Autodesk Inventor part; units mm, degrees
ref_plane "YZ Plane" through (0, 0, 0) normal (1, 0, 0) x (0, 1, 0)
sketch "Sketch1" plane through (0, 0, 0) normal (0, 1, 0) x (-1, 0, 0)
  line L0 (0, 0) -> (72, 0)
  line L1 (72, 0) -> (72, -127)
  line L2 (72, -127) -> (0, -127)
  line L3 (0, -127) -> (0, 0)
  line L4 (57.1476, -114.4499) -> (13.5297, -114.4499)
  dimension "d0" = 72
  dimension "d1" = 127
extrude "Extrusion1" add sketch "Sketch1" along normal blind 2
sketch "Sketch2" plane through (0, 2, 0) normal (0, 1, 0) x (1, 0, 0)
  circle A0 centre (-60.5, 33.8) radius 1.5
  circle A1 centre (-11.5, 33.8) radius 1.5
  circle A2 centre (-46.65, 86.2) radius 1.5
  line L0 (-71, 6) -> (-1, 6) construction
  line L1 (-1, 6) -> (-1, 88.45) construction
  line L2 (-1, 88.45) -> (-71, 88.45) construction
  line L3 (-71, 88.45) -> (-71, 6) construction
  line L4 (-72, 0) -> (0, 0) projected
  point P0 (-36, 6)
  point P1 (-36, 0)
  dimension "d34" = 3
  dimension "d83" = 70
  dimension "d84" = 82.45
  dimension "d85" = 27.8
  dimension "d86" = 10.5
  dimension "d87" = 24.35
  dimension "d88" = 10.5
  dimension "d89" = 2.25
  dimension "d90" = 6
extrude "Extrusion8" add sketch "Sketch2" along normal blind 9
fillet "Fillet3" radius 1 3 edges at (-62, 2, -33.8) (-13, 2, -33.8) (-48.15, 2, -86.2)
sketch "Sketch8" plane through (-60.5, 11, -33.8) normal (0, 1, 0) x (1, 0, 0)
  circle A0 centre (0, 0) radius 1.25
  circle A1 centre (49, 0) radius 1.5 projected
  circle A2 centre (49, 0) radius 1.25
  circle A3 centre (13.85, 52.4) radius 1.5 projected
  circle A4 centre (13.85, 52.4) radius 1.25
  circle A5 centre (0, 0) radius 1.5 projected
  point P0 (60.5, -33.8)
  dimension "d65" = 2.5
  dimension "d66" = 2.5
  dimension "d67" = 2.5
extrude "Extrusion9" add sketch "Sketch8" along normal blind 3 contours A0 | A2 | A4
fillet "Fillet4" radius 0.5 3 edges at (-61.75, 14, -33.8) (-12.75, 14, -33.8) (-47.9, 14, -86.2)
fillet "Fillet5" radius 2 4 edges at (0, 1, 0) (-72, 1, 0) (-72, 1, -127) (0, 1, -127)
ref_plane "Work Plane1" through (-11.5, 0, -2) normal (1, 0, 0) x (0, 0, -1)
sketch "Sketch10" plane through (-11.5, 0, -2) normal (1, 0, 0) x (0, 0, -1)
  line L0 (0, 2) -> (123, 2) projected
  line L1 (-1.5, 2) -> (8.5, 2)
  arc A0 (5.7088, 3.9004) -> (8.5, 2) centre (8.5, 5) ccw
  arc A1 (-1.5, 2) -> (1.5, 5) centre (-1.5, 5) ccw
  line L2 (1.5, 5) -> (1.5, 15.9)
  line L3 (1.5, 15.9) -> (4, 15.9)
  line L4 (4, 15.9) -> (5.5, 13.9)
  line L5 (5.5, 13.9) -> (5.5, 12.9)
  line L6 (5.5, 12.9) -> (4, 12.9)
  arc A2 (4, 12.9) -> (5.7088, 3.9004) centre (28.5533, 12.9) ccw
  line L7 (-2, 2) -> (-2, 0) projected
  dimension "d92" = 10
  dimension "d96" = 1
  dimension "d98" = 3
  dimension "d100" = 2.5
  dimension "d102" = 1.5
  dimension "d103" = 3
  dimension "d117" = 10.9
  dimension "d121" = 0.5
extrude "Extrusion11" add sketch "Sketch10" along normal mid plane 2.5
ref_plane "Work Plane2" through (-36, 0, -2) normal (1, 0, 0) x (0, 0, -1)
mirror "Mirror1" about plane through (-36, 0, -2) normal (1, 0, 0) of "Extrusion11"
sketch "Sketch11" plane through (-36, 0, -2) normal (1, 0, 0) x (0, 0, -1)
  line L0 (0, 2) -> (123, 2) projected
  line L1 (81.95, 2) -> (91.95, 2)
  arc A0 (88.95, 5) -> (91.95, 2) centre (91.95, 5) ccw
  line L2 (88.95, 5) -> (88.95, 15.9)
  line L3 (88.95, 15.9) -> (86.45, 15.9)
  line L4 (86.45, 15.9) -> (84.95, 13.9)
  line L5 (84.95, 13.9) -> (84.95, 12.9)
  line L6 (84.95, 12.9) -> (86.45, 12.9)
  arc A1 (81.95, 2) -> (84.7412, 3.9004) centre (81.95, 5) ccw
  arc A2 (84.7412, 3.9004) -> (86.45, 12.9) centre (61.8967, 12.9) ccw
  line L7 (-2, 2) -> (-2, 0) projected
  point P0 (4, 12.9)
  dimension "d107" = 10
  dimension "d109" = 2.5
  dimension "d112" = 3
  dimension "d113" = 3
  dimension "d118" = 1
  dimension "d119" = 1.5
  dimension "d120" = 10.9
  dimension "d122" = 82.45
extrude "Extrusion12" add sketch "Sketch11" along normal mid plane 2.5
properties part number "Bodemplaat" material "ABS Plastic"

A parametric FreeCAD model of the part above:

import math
import FreeCAD as App
import Part
import Sketcher
Q = App.Units.Quantity


def edges_at(feature, points):
    """Names of the edges that pass closest to the given points."""
    edges = feature.Shape.Edges
    near = lambda p: min(range(len(edges)), key=lambda i: edges[i].distToShape(Part.Vertex(*p))[0])
    return sorted({f"Edge{near(p) + 1}" for p in points})

doc = App.newDocument("Part")
body = doc.addObject("PartDesign::Body", "Body")

sketch1 = body.newObject("Sketcher::SketchObject", "Sketch")
sketch1.AttachmentSupport = (doc.getObject("XZ_Plane"), [""])
sketch1.MapMode = "FlatFace"
sketch1.addGeometry([
    Part.LineSegment(App.Vector(-72, 0, 0), App.Vector(0, 0, 0)),
    Part.LineSegment(App.Vector(0, 0, 0), App.Vector(0, -127, 0)),
    Part.LineSegment(App.Vector(0, -127, 0), App.Vector(-72, -127, 0)),
    Part.LineSegment(App.Vector(-72, -127, 0), App.Vector(-72, 0, 0)),
], False)
sketch1.addConstraint([
    Sketcher.Constraint("Coincident", 0, 2, 1, 1),
    Sketcher.Constraint("Coincident", 1, 2, 2, 1),
    Sketcher.Constraint("Coincident", 2, 2, 3, 1),
    Sketcher.Constraint("Coincident", 3, 2, 0, 1),
    Sketcher.Constraint("Horizontal", 0),
    Sketcher.Constraint("Vertical", 1),
    Sketcher.Constraint("Horizontal", 2),
    Sketcher.Constraint("Vertical", 3),
    Sketcher.Constraint("Coincident", 0, 2, -1, 1),
    Sketcher.Constraint("DistanceX", 0, 1, 0, 2, Q("72 mm")),
    Sketcher.Constraint("DistanceY", 1, 2, 1, 1, Q("127 mm")),
])
pad1 = body.newObject("PartDesign::Pad", "Pad")
pad1.Profile = sketch1
pad1.Length = 2
pad1.Reversed = True

sketch2 = body.newObject("Sketcher::SketchObject", "Sketch001")
sketch2.AttachmentSupport = (doc.getObject("XZ_Plane"), [""])
sketch2.MapMode = "FlatFace"
sketch2.AttachmentOffset = App.Placement(App.Vector(0, 0, -2), App.Rotation())
sketch2.addGeometry([
    Part.Circle(App.Vector(-60.5, -33.8, 0), App.Vector(0, 0, 1), 1.5),
    Part.Circle(App.Vector(-11.5, -33.8, 0), App.Vector(0, 0, 1), 1.5),
    Part.Circle(App.Vector(-46.6, -86.2, 0), App.Vector(0, 0, 1), 1.5),
], False)
sketch2.addConstraint([
    Sketcher.Constraint("Equal", 0, 1),
    Sketcher.Constraint("Equal", 1, 2),
    Sketcher.Constraint("Horizontal", 0, 3, 1, 3),
    Sketcher.Constraint("Diameter", 0, Q("3 mm")),
    Sketcher.Constraint("DistanceX", 0, 3, 1, 3, Q("49 mm")),
    Sketcher.Constraint("DistanceX", 0, 3, -1, 1, Q("60.5 mm")),
    Sketcher.Constraint("DistanceY", 0, 3, -1, 1, Q("33.8 mm")),
    Sketcher.Constraint("DistanceY", 2, 3, -1, 1, Q("86.2 mm")),
    Sketcher.Constraint("DistanceX", 2, 3, -1, 1, Q("46.65 mm")),
])
pad2 = body.newObject("PartDesign::Pad", "Pad001")
pad2.Profile = sketch2
pad2.Length = 9
pad2.Reversed = True
doc.recompute()

fillet = body.newObject("PartDesign::Fillet", "Fillet")
fillet.Base = (pad2, edges_at(pad2, [(-62, 2, -33.8), (-13, 2, -33.8), (-48.15, 2, -86.2)]))
fillet.Radius = 1

sketch3 = body.newObject("Sketcher::SketchObject", "Sketch002")
sketch3.AttachmentSupport = (doc.getObject("XZ_Plane"), [""])
sketch3.MapMode = "FlatFace"
sketch3.AttachmentOffset = App.Placement(App.Vector(0, 0, -11), App.Rotation())
sketch3.addGeometry([
    Part.Circle(App.Vector(-60.5, -33.8, 0), App.Vector(0, 0, 1), 1.2),
    Part.Circle(App.Vector(-11.5, -33.8, 0), App.Vector(0, 0, 1), 1.2),
    Part.Circle(App.Vector(-46.6, -86.2, 0), App.Vector(0, 0, 1), 1.2),
], False)
sketch3.addConstraint([
    Sketcher.Constraint("Equal", 0, 1),
    Sketcher.Constraint("Equal", 1, 2),
    Sketcher.Constraint("Horizontal", 0, 3, 1, 3),
    Sketcher.Constraint("Diameter", 0, Q("2.5 mm")),
    Sketcher.Constraint("DistanceX", 0, 3, 1, 3, Q("49 mm")),
    Sketcher.Constraint("DistanceX", 0, 3, -1, 1, Q("60.5 mm")),
    Sketcher.Constraint("DistanceY", 0, 3, -1, 1, Q("33.8 mm")),
    Sketcher.Constraint("DistanceY", 2, 3, -1, 1, Q("86.2 mm")),
    Sketcher.Constraint("DistanceX", 2, 3, -1, 1, Q("46.65 mm")),
])
pad3 = body.newObject("PartDesign::Pad", "Pad002")
pad3.Profile = sketch3
pad3.Length = 3
pad3.Reversed = True
doc.recompute()

fillet2 = body.newObject("PartDesign::Fillet", "Fillet001")
fillet2.Base = (pad3, edges_at(pad3, [(-61.75, 14, -33.8), (-12.75, 14, -33.8), (-47.9, 14, -86.2)]))
fillet2.Radius = 0.5
doc.recompute()

fillet3 = body.newObject("PartDesign::Fillet", "Fillet002")
fillet3.Base = (fillet2, edges_at(fillet2, [
    (0, 1, 0),
    (-72, 1, 0),
    (-72, 1, -127),
    (0, 1, -127),
]))
fillet3.Radius = 2

sketch4 = body.newObject("Sketcher::SketchObject", "Sketch003")
sketch4.AttachmentSupport = (doc.getObject("YZ_Plane"), [""])
sketch4.MapMode = "FlatFace"
sketch4.AttachmentOffset = App.Placement(App.Vector(0, 0, -11.5), App.Rotation())
sketch4.addGeometry([
    Part.LineSegment(App.Vector(2, -0.5, 0), App.Vector(2, -10.5, 0)),
    Part.ArcOfCircle(Part.Circle(App.Vector(5, -10.5, 0), App.Vector(0, 0, 1), 3), math.radians(112), math.radians(180)),
    Part.ArcOfCircle(Part.Circle(App.Vector(12.9, -30.6, 0), App.Vector(0, 0, 1), 24.6), math.radians(90), math.radians(112)),
    Part.LineSegment(App.Vector(12.9, -6, 0), App.Vector(12.9, -7.5, 0)),
    Part.LineSegment(App.Vector(12.9, -7.5, 0), App.Vector(13.9, -7.5, 0)),
    Part.LineSegment(App.Vector(13.9, -7.5, 0), App.Vector(15.9, -6, 0)),
    Part.LineSegment(App.Vector(15.9, -6, 0), App.Vector(15.9, -3.5, 0)),
    Part.LineSegment(App.Vector(15.9, -3.5, 0), App.Vector(5, -3.5, 0)),
    Part.ArcOfCircle(Part.Circle(App.Vector(5, -0.5, 0), App.Vector(0, 0, 1), 3), math.radians(180), math.radians(270)),
], False)
sketch4.addConstraint([
    Sketcher.Constraint("Tangent", 0, 2, 1, 2),
    Sketcher.Constraint("Tangent", 1, 1, 2, 2),
    Sketcher.Constraint("Coincident", 2, 1, 3, 1),
    Sketcher.Constraint("Coincident", 3, 2, 4, 1),
    Sketcher.Constraint("Coincident", 4, 2, 5, 1),
    Sketcher.Constraint("Coincident", 5, 2, 6, 1),
    Sketcher.Constraint("Coincident", 6, 2, 7, 1),
    Sketcher.Constraint("Tangent", 7, 2, 8, 2),
    Sketcher.Constraint("Tangent", 8, 1, 0, 1),
    Sketcher.Constraint("Vertical", 0),
    Sketcher.Constraint("Vertical", 3),
    Sketcher.Constraint("Horizontal", 4),
    Sketcher.Constraint("Vertical", 6),
    Sketcher.Constraint("Horizontal", 7),
    Sketcher.Constraint("Equal", 1, 8),
    Sketcher.Constraint("Horizontal", 2, 1, 5, 2),
    Sketcher.Constraint("Radius", 1, Q("3 mm")),
    Sketcher.Constraint("DistanceX", 4, 1, 4, 2, Q("1 mm")),
    Sketcher.Constraint("DistanceY", 0, 2, 0, 1, Q("10 mm")),
    Sketcher.Constraint("DistanceX", 7, 2, 7, 1, Q("10.9 mm")),
    Sketcher.Constraint("DistanceY", 3, 2, 3, 1, Q("1.5 mm")),
    Sketcher.Constraint("DistanceY", 6, 1, 6, 2, Q("2.5 mm")),
    Sketcher.Constraint("DistanceX", 2, 1, 5, 2, Q("3 mm")),
    Sketcher.Constraint("DistanceY", 8, 3, -1, 1, Q("0.5 mm")),
    Sketcher.Constraint("DistanceX", 0, 2, 2, 3, Q("10.9 mm")),
    Sketcher.Constraint("DistanceX", -1, 1, 1, 3, Q("5 mm")),
])
pad4 = body.newObject("PartDesign::Pad", "Pad003")
pad4.Profile = sketch4
pad4.Length = 2.5
pad4.Midplane = True
doc.recompute()

datumplane = body.newObject("PartDesign::Plane", "DatumPlane")
datumplane.AttachmentSupport = (doc.getObject("YZ_Plane"), [""])
datumplane.MapMode = "FlatFace"
datumplane.AttachmentOffset = App.Placement(App.Vector(0, 0, -36), App.Rotation())
mirrored = body.newObject("PartDesign::Mirrored", "Mirrored")
mirrored.Originals = [pad4]
mirrored.MirrorPlane = (datumplane, [""])
body.Tip = mirrored

sketch5 = body.newObject("Sketcher::SketchObject", "Sketch004")
sketch5.AttachmentSupport = (doc.getObject("YZ_Plane"), [""])
sketch5.MapMode = "FlatFace"
sketch5.AttachmentOffset = App.Placement(App.Vector(0, 0, -36), App.Rotation())
sketch5.addGeometry([
    Part.ArcOfCircle(Part.Circle(App.Vector(5, -84, 0), App.Vector(0, 0, 1), 3), math.radians(180), math.radians(248)),
    Part.LineSegment(App.Vector(2, -84, 0), App.Vector(2, -94, 0)),
    Part.ArcOfCircle(Part.Circle(App.Vector(5, -94, 0), App.Vector(0, 0, 1), 3), math.radians(90), math.radians(180)),
    Part.LineSegment(App.Vector(5, -91, 0), App.Vector(15.9, -91, 0)),
    Part.LineSegment(App.Vector(15.9, -91, 0), App.Vector(15.9, -88.5, 0)),
    Part.LineSegment(App.Vector(15.9, -88.5, 0), App.Vector(13.9, -87, 0)),
    Part.LineSegment(App.Vector(13.9, -87, 0), App.Vector(12.9, -87, 0)),
    Part.LineSegment(App.Vector(12.9, -87, 0), App.Vector(12.9, -88.5, 0)),
    Part.ArcOfCircle(Part.Circle(App.Vector(12.9, -63.9, 0), App.Vector(0, 0, 1), 24.6), math.radians(-112), math.radians(-90)),
], False)
sketch5.addConstraint([
    Sketcher.Constraint("Tangent", 0, 1, 1, 1),
    Sketcher.Constraint("Tangent", 1, 2, 2, 2),
    Sketcher.Constraint("Tangent", 2, 1, 3, 1),
    Sketcher.Constraint("Coincident", 3, 2, 4, 1),
    Sketcher.Constraint("Coincident", 4, 2, 5, 1),
    Sketcher.Constraint("Coincident", 5, 2, 6, 1),
    Sketcher.Constraint("Coincident", 6, 2, 7, 1),
    Sketcher.Constraint("Coincident", 7, 2, 8, 2),
    Sketcher.Constraint("Tangent", 8, 1, 0, 2),
    Sketcher.Constraint("Vertical", 1),
    Sketcher.Constraint("Horizontal", 3),
    Sketcher.Constraint("Vertical", 4),
    Sketcher.Constraint("Horizontal", 6),
    Sketcher.Constraint("Vertical", 7),
    Sketcher.Constraint("Equal", 0, 2),
    Sketcher.Constraint("Horizontal", 4, 2, 7, 2),
    Sketcher.Constraint("Vertical", 8, 3, 6, 2),
    Sketcher.Constraint("Radius", 0, Q("3 mm")),
    Sketcher.Constraint("DistanceX", 6, 2, 6, 1, Q("1 mm")),
    Sketcher.Constraint("DistanceY", 1, 2, 1, 1, Q("10 mm")),
    Sketcher.Constraint("DistanceX", 3, 1, 3, 2, Q("10.9 mm")),
    Sketcher.Constraint("DistanceY", 4, 1, 4, 2, Q("2.5 mm")),
    Sketcher.Constraint("DistanceY", 7, 2, 7, 1, Q("1.5 mm")),
    Sketcher.Constraint("DistanceX", 6, 2, 4, 2, Q("3 mm")),
    Sketcher.Constraint("DistanceX", -1, 1, 0, 3, Q("5 mm")),
    Sketcher.Constraint("DistanceY", 0, 3, -1, 1, Q("83.95 mm")),
])
pad5 = body.newObject("PartDesign::Pad", "Pad004")
pad5.Profile = sketch5
pad5.Length = 2.5
pad5.Midplane = True

doc.recompute()
